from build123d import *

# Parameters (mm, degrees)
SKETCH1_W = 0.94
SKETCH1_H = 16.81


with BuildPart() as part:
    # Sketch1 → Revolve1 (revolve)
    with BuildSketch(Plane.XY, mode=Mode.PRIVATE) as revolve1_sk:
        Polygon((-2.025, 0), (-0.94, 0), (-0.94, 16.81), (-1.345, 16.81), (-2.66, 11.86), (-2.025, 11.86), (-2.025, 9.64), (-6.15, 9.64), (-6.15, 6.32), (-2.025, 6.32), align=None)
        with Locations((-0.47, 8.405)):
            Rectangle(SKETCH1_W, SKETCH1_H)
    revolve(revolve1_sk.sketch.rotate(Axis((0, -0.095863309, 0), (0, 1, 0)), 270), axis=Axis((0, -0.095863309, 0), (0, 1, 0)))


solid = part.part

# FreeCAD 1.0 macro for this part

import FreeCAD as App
import Part
import Sketcher
Q = App.Units.Quantity

doc = App.newDocument("Part")
body = doc.addObject("PartDesign::Body", "Body")

sketch1 = body.newObject("Sketcher::SketchObject", "Sketch")
sketch1.AttachmentSupport = (doc.getObject("XY_Plane"), [""])
sketch1.MapMode = "FlatFace"
sketch1.addGeometry(Part.LineSegment(App.Vector(-2, 0, 0), App.Vector(0, 0, 0)), False)
sketch1.addGeometry(Part.LineSegment(App.Vector(0, 0, 0), App.Vector(0, 16.8, 0)), False)
sketch1.addGeometry(Part.LineSegment(App.Vector(0, 16.8, 0), App.Vector(-1.3, 16.8, 0)), False)
sketch1.addGeometry(Part.LineSegment(App.Vector(-1.3, 16.8, 0), App.Vector(-2.7, 11.9, 0)), False)
sketch1.addGeometry(Part.LineSegment(App.Vector(-2.7, 11.9, 0), App.Vector(-2, 11.9, 0)), False)
sketch1.addGeometry(Part.LineSegment(App.Vector(-2, 11.9, 0), App.Vector(-2, 9.6, 0)), False)
sketch1.addGeometry(Part.LineSegment(App.Vector(-2, 9.6, 0), App.Vector(-6.2, 9.6, 0)), False)
sketch1.addGeometry(Part.LineSegment(App.Vector(-6.2, 9.6, 0), App.Vector(-6.2, 6.3, 0)), False)
sketch1.addGeometry(Part.LineSegment(App.Vector(-6.2, 6.3, 0), App.Vector(-2, 6.3, 0)), False)
sketch1.addGeometry(Part.LineSegment(App.Vector(-2, 6.3, 0), App.Vector(-2, 0, 0)), False)
sketch1.addConstraint(Sketcher.Constraint("Coincident", 0, 2, 1, 1))
sketch1.addConstraint(Sketcher.Constraint("Coincident", 1, 2, 2, 1))
sketch1.addConstraint(Sketcher.Constraint("Coincident", 2, 2, 3, 1))
sketch1.addConstraint(Sketcher.Constraint("Coincident", 3, 2, 4, 1))
sketch1.addConstraint(Sketcher.Constraint("Coincident", 4, 2, 5, 1))
sketch1.addConstraint(Sketcher.Constraint("Coincident", 5, 2, 6, 1))
sketch1.addConstraint(Sketcher.Constraint("Coincident", 6, 2, 7, 1))
sketch1.addConstraint(Sketcher.Constraint("Coincident", 7, 2, 8, 1))
sketch1.addConstraint(Sketcher.Constraint("Coincident", 8, 2, 9, 1))
sketch1.addConstraint(Sketcher.Constraint("Coincident", 9, 2, 0, 1))
sketch1.addConstraint(Sketcher.Constraint("Horizontal", 0))
sketch1.addConstraint(Sketcher.Constraint("Vertical", 1))
sketch1.addConstraint(Sketcher.Constraint("Horizontal", 2))
sketch1.addConstraint(Sketcher.Constraint("Horizontal", 4))
sketch1.addConstraint(Sketcher.Constraint("Vertical", 5))
sketch1.addConstraint(Sketcher.Constraint("Horizontal", 6))
sketch1.addConstraint(Sketcher.Constraint("Vertical", 7))
sketch1.addConstraint(Sketcher.Constraint("Horizontal", 8))
sketch1.addConstraint(Sketcher.Constraint("Vertical", 9))
sketch1.addConstraint(Sketcher.Constraint("Coincident", 0, 2, -1, 1))
sketch1.addConstraint(Sketcher.Constraint("Vertical", 5, 2, 8, 2))
sketch1.addConstraint(Sketcher.Constraint("DistanceX", 4, 1, 4, 2, Q("0.025 in")))
sketch1.addConstraint(Sketcher.Constraint("DistanceX", 0, 1, 0, 2, Q("2.025 mm")))
sketch1.addConstraint(Sketcher.Constraint("DistanceX", 2, 2, 2, 1, Q("1.345 mm")))
sketch1.addConstraint(Sketcher.Constraint("DistanceX", 6, 2, 6, 1, Q("4.125 mm")))
sketch1.addConstraint(Sketcher.Constraint("DistanceY", 1, 1, 1, 2, Q("16.81 mm")))
sketch1.addConstraint(Sketcher.Constraint("DistanceY", 5, 2, 5, 1, Q("2.22 mm")))
sketch1.addConstraint(Sketcher.Constraint("DistanceY", 7, 2, 7, 1, Q("3.32 mm")))
sketch1.addConstraint(Sketcher.Constraint("DistanceY", 9, 2, 9, 1, Q("6.32 mm")))
revolution = body.newObject("PartDesign::Revolution", "Revolution")
revolution.Profile = sketch1
revolution.ReferenceAxis = (sketch1, ["V_Axis"])
revolution.Angle = 360

doc.recompute()
